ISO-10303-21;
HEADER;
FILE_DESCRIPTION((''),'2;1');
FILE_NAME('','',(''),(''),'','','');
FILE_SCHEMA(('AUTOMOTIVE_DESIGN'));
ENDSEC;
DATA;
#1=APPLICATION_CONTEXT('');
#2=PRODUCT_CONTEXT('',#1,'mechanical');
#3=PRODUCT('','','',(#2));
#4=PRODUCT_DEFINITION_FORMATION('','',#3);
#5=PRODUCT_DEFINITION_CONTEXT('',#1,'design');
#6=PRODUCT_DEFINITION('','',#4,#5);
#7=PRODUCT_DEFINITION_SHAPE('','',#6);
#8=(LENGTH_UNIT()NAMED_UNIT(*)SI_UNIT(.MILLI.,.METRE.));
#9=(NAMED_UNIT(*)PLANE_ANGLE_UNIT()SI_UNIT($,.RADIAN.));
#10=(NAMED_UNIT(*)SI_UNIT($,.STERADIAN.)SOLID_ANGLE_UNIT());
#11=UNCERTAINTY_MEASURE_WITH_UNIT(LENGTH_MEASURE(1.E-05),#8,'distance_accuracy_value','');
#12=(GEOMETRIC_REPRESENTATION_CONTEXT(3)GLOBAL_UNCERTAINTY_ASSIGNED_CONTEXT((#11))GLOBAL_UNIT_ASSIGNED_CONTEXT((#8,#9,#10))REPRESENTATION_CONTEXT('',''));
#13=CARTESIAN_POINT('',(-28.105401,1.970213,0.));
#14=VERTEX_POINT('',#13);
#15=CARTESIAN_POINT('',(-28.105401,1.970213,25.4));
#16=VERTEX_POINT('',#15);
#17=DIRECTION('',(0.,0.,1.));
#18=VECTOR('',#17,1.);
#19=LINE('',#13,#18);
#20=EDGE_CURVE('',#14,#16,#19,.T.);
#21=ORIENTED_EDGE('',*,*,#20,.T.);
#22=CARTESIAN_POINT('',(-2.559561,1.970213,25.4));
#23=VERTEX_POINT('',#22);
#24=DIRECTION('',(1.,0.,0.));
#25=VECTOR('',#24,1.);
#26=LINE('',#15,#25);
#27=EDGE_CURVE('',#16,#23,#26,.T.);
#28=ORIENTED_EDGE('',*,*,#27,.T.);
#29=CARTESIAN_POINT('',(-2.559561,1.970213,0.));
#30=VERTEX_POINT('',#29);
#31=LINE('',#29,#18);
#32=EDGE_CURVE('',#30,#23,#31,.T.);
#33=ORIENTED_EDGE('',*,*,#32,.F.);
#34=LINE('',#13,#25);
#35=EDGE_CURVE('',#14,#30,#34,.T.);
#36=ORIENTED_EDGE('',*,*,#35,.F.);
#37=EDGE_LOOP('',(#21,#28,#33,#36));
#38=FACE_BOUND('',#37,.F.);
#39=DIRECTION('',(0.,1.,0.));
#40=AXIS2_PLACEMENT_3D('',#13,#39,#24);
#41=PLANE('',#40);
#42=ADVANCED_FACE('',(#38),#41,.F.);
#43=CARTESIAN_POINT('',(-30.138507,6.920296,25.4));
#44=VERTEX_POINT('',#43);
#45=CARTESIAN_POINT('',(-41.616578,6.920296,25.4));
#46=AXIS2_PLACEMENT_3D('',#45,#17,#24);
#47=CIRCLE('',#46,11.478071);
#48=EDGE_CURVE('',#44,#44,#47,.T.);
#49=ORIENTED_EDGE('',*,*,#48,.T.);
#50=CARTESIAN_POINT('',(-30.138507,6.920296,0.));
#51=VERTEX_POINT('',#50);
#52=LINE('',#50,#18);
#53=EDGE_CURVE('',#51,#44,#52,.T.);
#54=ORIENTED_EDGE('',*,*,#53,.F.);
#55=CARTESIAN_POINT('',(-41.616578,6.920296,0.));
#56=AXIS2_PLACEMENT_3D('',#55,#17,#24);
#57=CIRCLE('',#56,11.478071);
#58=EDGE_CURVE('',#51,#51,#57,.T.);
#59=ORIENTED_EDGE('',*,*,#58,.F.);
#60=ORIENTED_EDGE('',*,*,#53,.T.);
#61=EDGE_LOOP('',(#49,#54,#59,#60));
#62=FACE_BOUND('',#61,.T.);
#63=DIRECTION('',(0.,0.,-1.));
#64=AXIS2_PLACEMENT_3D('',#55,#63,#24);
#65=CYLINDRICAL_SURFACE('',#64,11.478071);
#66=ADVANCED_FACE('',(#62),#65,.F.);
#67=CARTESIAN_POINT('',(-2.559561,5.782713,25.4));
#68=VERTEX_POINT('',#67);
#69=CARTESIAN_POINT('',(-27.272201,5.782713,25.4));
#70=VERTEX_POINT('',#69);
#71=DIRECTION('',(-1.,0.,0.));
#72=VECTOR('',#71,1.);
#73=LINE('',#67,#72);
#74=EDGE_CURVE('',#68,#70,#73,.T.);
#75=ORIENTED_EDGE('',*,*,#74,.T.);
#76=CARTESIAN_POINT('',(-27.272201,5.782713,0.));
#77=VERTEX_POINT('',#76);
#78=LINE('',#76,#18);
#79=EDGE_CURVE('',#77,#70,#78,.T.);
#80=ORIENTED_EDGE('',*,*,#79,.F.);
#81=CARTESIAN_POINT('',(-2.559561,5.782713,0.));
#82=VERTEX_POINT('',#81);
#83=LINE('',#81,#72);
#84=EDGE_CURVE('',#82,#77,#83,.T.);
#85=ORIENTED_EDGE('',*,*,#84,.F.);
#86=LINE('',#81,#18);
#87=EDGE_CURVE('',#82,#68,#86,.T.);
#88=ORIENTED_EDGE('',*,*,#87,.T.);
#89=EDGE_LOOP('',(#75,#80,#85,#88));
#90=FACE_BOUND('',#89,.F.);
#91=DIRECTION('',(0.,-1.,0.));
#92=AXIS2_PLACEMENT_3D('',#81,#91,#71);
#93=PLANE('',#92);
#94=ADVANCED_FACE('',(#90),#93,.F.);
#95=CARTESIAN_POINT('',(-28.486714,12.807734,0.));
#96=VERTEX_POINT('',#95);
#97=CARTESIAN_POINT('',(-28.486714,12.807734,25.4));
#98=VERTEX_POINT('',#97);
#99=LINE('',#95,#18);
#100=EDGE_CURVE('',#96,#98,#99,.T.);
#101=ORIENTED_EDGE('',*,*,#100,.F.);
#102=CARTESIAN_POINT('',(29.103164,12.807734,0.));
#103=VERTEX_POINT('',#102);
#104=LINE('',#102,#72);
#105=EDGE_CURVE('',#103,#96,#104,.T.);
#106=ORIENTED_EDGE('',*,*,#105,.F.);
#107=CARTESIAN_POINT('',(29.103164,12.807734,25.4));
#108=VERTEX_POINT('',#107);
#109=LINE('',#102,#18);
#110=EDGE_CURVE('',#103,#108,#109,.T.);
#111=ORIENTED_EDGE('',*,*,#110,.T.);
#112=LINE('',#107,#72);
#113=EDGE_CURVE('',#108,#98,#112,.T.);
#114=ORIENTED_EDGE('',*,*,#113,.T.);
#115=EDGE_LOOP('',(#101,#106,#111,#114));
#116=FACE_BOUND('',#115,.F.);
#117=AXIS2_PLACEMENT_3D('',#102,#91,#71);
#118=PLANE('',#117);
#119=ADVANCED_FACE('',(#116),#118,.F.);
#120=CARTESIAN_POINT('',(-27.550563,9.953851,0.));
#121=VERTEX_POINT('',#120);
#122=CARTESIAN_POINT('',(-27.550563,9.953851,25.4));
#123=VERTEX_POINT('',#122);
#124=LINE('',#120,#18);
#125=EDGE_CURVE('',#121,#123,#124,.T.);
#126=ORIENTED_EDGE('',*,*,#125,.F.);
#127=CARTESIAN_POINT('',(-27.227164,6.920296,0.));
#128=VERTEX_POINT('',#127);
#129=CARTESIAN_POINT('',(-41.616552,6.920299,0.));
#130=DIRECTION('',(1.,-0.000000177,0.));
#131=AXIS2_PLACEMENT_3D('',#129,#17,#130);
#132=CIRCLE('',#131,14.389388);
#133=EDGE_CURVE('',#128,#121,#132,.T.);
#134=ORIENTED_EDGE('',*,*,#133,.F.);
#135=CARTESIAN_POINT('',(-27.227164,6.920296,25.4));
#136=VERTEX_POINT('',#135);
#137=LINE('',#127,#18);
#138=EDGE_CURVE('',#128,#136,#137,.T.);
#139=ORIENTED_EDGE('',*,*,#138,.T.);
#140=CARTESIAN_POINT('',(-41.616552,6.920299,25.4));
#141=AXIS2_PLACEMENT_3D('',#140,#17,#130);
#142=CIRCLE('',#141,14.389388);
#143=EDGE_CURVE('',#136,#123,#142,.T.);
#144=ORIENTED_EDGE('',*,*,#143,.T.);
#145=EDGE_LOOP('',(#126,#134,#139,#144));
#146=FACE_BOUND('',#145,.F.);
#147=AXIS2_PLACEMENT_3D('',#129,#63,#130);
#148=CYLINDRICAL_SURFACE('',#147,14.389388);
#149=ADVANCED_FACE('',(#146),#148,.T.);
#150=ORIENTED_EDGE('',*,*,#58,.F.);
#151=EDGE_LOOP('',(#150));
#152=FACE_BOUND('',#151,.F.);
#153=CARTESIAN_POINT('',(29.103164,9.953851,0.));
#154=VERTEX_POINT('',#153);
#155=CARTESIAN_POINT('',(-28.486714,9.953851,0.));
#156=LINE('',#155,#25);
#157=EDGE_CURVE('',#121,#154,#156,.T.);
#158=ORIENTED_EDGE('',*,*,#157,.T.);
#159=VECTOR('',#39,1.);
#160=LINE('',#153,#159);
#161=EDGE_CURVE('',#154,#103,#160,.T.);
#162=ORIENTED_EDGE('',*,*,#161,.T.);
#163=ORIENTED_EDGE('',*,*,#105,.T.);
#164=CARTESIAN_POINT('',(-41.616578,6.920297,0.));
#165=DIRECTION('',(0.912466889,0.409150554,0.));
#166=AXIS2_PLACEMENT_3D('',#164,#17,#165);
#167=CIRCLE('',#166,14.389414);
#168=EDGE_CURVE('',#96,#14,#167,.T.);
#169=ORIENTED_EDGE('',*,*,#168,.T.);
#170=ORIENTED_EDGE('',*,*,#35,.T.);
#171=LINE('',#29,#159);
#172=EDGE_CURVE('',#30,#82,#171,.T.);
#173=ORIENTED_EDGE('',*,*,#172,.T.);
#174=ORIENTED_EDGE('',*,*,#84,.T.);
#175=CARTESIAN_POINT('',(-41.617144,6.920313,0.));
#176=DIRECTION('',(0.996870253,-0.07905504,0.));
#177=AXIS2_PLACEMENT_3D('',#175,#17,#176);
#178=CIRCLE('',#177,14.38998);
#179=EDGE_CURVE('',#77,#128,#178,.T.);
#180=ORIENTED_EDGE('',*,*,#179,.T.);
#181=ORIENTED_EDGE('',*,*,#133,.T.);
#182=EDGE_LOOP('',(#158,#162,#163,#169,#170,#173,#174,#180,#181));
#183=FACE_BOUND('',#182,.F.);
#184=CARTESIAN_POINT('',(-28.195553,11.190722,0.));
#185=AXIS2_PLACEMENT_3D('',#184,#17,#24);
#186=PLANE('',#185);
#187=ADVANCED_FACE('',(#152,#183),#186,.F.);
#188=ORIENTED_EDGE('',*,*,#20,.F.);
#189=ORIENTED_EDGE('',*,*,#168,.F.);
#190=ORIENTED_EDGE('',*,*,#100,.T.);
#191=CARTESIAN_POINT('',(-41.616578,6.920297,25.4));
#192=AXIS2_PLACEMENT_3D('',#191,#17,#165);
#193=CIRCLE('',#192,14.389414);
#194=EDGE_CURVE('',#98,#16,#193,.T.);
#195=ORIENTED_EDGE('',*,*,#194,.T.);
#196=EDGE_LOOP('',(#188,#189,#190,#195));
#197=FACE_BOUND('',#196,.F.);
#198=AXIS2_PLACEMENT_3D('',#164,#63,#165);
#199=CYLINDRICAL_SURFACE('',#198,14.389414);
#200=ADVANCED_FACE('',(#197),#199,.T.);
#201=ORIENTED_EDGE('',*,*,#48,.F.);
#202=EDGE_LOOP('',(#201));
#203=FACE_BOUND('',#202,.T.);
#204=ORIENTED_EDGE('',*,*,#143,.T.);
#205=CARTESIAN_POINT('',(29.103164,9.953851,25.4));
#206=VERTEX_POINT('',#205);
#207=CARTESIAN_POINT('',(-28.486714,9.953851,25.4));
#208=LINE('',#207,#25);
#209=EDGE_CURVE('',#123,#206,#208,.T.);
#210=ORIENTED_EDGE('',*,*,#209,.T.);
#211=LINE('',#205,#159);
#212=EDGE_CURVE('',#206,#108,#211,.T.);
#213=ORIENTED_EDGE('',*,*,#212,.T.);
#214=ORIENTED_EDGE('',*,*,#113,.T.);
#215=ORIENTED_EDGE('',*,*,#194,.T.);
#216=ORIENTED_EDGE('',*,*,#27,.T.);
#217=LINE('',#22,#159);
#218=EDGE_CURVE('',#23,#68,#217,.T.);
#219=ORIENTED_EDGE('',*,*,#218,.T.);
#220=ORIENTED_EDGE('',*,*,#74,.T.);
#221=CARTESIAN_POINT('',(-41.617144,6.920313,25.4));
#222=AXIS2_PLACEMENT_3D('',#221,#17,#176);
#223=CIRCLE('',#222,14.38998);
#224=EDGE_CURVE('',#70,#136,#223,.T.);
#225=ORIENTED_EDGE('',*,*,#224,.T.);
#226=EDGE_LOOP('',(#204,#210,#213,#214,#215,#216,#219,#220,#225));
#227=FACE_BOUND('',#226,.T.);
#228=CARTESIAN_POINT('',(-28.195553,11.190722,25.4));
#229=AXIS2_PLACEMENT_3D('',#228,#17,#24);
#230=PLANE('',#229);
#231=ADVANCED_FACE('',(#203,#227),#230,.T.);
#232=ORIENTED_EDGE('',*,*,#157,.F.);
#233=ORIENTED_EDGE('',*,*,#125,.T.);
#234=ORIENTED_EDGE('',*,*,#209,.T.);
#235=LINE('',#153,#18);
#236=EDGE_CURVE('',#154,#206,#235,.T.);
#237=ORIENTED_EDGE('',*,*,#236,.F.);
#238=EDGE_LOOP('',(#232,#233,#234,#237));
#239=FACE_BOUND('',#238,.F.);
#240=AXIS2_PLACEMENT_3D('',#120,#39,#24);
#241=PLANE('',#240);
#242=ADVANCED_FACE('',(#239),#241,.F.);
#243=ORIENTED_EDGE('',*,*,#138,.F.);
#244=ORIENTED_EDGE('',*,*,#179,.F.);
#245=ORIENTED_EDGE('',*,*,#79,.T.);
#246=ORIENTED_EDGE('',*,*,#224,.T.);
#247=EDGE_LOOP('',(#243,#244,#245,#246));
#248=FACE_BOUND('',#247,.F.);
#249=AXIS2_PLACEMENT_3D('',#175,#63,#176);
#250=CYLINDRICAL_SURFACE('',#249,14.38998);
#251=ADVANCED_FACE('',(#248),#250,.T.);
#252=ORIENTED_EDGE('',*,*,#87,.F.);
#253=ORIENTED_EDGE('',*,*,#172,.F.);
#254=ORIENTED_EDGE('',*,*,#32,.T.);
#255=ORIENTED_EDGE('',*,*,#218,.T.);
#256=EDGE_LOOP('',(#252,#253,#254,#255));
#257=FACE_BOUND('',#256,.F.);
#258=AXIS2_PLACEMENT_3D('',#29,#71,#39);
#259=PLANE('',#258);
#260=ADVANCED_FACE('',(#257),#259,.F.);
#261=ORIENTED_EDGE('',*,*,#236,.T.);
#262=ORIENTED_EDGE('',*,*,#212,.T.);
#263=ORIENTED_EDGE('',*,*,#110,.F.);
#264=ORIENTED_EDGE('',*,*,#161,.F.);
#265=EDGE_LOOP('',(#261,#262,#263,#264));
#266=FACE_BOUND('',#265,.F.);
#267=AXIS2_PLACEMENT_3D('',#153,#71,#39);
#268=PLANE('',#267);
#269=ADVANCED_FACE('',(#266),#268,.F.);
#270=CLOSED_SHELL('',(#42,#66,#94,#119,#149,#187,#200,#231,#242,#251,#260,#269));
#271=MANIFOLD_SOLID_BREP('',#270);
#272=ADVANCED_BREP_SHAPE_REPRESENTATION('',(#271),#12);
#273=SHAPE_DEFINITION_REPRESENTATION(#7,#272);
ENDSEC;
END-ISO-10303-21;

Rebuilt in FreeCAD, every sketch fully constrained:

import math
import FreeCAD as App
import Part
import Sketcher

V = App.Vector
Q = App.Units.Quantity

doc = App.newDocument("Part")
body = doc.addObject("PartDesign::Body", "Body")

sketch1 = doc.addObject("Sketcher::SketchObject", "Sketch")
body.addObject(sketch1)
sketch1.AttachmentSupport = (doc.XY_Plane, [""])
sketch1.MapMode = "FlatFace"
sketch1.addGeometry([
    Part.LineSegment(V(-27.6, 10, 0), V(29.1, 10, 0)),
    Part.LineSegment(V(29.1, 10, 0), V(29.1, 12.8, 0)),
    Part.LineSegment(V(29.1, 12.8, 0), V(-28.5, 12.8, 0)),
    Part.ArcOfCircle(Part.Circle(V(-41.6, 6.9, 0), V(0, 0, 1), 14.4), math.radians(24), math.radians(340)),
    Part.LineSegment(V(-28.1, 2, 0), V(-2.6, 2, 0)),
    Part.LineSegment(V(-2.6, 2, 0), V(-2.6, 5.8, 0)),
    Part.LineSegment(V(-2.6, 5.8, 0), V(-27.3, 5.8, 0)),
    Part.ArcOfCircle(Part.Circle(V(-41.6, 6.9, 0), V(0, 0, 1), 14.4), math.radians(-4.53), math.radians(0)),
    Part.ArcOfCircle(Part.Circle(V(-41.6, 6.9, 0), V(0, 0, 1), 14.4), math.radians(0), math.radians(12.17)),
    Part.Circle(V(-41.6, 6.9, 0), V(0, 0, 1), 11.5),
], False)
sketch1.addConstraint([
    Sketcher.Constraint("Coincident", 0, 2, 1, 1),
    Sketcher.Constraint("Coincident", 1, 2, 2, 1),
    Sketcher.Constraint("Coincident", 2, 2, 3, 1),
    Sketcher.Constraint("Coincident", 3, 2, 4, 1),
    Sketcher.Constraint("Coincident", 4, 2, 5, 1),
    Sketcher.Constraint("Coincident", 5, 2, 6, 1),
    Sketcher.Constraint("Coincident", 6, 2, 7, 1),
    Sketcher.Constraint("Tangent", 7, 2, 8, 1),
    Sketcher.Constraint("Coincident", 8, 2, 0, 1),
    Sketcher.Constraint("Horizontal", 0),
    Sketcher.Constraint("Vertical", 1),
    Sketcher.Constraint("Horizontal", 2),
    Sketcher.Constraint("Horizontal", 4),
    Sketcher.Constraint("Vertical", 5),
    Sketcher.Constraint("Horizontal", 6),
    Sketcher.Constraint("Coincident", 9, 3, 3, 3),
    Sketcher.Constraint("Horizontal", 3, 3, 8, 3),
    Sketcher.Constraint("Horizontal", 9, 3, 7, 2),
    Sketcher.Constraint("Diameter", 9, Q("22.956142 mm")),
    Sketcher.Constraint("Radius", 7, Q("14.38998 mm")),
    Sketcher.Constraint("DistanceY", 5, 1, 5, 2, Q("3.8125 mm")),
    Sketcher.Constraint("Radius", 3, Q("14.389414 mm")),
    Sketcher.Constraint("Radius", 8, Q("14.389388 mm")),
    Sketcher.Constraint("DistanceX", 4, 1, 4, 2, Q("25.54584 mm")),
    Sketcher.Constraint("DistanceX", 6, 2, 6, 1, Q("24.71264 mm")),
    Sketcher.Constraint("DistanceY", -1, 1, 8, 3, Q("6.920299 mm")),
    Sketcher.Constraint("DistanceX", 3, 2, -1, 1, Q("28.105401 mm")),
    Sketcher.Constraint("DistanceY", 3, 2, 7, 3, Q("4.9501 mm")),
    Sketcher.Constraint("DistanceX", 8, 2, 7, 2, Q("0.323399 mm")),
    Sketcher.Constraint("DistanceX", 0, 1, 0, 2, Q("56.653727 mm")),
    Sketcher.Constraint("DistanceX", 2, 2, 2, 1, Q("57.589878 mm")),
])
pad1 = doc.addObject("PartDesign::Pad", "Pad")
body.addObject(pad1)
pad1.Profile = sketch1
pad1.Length = Q("1 in")

doc.recompute()
